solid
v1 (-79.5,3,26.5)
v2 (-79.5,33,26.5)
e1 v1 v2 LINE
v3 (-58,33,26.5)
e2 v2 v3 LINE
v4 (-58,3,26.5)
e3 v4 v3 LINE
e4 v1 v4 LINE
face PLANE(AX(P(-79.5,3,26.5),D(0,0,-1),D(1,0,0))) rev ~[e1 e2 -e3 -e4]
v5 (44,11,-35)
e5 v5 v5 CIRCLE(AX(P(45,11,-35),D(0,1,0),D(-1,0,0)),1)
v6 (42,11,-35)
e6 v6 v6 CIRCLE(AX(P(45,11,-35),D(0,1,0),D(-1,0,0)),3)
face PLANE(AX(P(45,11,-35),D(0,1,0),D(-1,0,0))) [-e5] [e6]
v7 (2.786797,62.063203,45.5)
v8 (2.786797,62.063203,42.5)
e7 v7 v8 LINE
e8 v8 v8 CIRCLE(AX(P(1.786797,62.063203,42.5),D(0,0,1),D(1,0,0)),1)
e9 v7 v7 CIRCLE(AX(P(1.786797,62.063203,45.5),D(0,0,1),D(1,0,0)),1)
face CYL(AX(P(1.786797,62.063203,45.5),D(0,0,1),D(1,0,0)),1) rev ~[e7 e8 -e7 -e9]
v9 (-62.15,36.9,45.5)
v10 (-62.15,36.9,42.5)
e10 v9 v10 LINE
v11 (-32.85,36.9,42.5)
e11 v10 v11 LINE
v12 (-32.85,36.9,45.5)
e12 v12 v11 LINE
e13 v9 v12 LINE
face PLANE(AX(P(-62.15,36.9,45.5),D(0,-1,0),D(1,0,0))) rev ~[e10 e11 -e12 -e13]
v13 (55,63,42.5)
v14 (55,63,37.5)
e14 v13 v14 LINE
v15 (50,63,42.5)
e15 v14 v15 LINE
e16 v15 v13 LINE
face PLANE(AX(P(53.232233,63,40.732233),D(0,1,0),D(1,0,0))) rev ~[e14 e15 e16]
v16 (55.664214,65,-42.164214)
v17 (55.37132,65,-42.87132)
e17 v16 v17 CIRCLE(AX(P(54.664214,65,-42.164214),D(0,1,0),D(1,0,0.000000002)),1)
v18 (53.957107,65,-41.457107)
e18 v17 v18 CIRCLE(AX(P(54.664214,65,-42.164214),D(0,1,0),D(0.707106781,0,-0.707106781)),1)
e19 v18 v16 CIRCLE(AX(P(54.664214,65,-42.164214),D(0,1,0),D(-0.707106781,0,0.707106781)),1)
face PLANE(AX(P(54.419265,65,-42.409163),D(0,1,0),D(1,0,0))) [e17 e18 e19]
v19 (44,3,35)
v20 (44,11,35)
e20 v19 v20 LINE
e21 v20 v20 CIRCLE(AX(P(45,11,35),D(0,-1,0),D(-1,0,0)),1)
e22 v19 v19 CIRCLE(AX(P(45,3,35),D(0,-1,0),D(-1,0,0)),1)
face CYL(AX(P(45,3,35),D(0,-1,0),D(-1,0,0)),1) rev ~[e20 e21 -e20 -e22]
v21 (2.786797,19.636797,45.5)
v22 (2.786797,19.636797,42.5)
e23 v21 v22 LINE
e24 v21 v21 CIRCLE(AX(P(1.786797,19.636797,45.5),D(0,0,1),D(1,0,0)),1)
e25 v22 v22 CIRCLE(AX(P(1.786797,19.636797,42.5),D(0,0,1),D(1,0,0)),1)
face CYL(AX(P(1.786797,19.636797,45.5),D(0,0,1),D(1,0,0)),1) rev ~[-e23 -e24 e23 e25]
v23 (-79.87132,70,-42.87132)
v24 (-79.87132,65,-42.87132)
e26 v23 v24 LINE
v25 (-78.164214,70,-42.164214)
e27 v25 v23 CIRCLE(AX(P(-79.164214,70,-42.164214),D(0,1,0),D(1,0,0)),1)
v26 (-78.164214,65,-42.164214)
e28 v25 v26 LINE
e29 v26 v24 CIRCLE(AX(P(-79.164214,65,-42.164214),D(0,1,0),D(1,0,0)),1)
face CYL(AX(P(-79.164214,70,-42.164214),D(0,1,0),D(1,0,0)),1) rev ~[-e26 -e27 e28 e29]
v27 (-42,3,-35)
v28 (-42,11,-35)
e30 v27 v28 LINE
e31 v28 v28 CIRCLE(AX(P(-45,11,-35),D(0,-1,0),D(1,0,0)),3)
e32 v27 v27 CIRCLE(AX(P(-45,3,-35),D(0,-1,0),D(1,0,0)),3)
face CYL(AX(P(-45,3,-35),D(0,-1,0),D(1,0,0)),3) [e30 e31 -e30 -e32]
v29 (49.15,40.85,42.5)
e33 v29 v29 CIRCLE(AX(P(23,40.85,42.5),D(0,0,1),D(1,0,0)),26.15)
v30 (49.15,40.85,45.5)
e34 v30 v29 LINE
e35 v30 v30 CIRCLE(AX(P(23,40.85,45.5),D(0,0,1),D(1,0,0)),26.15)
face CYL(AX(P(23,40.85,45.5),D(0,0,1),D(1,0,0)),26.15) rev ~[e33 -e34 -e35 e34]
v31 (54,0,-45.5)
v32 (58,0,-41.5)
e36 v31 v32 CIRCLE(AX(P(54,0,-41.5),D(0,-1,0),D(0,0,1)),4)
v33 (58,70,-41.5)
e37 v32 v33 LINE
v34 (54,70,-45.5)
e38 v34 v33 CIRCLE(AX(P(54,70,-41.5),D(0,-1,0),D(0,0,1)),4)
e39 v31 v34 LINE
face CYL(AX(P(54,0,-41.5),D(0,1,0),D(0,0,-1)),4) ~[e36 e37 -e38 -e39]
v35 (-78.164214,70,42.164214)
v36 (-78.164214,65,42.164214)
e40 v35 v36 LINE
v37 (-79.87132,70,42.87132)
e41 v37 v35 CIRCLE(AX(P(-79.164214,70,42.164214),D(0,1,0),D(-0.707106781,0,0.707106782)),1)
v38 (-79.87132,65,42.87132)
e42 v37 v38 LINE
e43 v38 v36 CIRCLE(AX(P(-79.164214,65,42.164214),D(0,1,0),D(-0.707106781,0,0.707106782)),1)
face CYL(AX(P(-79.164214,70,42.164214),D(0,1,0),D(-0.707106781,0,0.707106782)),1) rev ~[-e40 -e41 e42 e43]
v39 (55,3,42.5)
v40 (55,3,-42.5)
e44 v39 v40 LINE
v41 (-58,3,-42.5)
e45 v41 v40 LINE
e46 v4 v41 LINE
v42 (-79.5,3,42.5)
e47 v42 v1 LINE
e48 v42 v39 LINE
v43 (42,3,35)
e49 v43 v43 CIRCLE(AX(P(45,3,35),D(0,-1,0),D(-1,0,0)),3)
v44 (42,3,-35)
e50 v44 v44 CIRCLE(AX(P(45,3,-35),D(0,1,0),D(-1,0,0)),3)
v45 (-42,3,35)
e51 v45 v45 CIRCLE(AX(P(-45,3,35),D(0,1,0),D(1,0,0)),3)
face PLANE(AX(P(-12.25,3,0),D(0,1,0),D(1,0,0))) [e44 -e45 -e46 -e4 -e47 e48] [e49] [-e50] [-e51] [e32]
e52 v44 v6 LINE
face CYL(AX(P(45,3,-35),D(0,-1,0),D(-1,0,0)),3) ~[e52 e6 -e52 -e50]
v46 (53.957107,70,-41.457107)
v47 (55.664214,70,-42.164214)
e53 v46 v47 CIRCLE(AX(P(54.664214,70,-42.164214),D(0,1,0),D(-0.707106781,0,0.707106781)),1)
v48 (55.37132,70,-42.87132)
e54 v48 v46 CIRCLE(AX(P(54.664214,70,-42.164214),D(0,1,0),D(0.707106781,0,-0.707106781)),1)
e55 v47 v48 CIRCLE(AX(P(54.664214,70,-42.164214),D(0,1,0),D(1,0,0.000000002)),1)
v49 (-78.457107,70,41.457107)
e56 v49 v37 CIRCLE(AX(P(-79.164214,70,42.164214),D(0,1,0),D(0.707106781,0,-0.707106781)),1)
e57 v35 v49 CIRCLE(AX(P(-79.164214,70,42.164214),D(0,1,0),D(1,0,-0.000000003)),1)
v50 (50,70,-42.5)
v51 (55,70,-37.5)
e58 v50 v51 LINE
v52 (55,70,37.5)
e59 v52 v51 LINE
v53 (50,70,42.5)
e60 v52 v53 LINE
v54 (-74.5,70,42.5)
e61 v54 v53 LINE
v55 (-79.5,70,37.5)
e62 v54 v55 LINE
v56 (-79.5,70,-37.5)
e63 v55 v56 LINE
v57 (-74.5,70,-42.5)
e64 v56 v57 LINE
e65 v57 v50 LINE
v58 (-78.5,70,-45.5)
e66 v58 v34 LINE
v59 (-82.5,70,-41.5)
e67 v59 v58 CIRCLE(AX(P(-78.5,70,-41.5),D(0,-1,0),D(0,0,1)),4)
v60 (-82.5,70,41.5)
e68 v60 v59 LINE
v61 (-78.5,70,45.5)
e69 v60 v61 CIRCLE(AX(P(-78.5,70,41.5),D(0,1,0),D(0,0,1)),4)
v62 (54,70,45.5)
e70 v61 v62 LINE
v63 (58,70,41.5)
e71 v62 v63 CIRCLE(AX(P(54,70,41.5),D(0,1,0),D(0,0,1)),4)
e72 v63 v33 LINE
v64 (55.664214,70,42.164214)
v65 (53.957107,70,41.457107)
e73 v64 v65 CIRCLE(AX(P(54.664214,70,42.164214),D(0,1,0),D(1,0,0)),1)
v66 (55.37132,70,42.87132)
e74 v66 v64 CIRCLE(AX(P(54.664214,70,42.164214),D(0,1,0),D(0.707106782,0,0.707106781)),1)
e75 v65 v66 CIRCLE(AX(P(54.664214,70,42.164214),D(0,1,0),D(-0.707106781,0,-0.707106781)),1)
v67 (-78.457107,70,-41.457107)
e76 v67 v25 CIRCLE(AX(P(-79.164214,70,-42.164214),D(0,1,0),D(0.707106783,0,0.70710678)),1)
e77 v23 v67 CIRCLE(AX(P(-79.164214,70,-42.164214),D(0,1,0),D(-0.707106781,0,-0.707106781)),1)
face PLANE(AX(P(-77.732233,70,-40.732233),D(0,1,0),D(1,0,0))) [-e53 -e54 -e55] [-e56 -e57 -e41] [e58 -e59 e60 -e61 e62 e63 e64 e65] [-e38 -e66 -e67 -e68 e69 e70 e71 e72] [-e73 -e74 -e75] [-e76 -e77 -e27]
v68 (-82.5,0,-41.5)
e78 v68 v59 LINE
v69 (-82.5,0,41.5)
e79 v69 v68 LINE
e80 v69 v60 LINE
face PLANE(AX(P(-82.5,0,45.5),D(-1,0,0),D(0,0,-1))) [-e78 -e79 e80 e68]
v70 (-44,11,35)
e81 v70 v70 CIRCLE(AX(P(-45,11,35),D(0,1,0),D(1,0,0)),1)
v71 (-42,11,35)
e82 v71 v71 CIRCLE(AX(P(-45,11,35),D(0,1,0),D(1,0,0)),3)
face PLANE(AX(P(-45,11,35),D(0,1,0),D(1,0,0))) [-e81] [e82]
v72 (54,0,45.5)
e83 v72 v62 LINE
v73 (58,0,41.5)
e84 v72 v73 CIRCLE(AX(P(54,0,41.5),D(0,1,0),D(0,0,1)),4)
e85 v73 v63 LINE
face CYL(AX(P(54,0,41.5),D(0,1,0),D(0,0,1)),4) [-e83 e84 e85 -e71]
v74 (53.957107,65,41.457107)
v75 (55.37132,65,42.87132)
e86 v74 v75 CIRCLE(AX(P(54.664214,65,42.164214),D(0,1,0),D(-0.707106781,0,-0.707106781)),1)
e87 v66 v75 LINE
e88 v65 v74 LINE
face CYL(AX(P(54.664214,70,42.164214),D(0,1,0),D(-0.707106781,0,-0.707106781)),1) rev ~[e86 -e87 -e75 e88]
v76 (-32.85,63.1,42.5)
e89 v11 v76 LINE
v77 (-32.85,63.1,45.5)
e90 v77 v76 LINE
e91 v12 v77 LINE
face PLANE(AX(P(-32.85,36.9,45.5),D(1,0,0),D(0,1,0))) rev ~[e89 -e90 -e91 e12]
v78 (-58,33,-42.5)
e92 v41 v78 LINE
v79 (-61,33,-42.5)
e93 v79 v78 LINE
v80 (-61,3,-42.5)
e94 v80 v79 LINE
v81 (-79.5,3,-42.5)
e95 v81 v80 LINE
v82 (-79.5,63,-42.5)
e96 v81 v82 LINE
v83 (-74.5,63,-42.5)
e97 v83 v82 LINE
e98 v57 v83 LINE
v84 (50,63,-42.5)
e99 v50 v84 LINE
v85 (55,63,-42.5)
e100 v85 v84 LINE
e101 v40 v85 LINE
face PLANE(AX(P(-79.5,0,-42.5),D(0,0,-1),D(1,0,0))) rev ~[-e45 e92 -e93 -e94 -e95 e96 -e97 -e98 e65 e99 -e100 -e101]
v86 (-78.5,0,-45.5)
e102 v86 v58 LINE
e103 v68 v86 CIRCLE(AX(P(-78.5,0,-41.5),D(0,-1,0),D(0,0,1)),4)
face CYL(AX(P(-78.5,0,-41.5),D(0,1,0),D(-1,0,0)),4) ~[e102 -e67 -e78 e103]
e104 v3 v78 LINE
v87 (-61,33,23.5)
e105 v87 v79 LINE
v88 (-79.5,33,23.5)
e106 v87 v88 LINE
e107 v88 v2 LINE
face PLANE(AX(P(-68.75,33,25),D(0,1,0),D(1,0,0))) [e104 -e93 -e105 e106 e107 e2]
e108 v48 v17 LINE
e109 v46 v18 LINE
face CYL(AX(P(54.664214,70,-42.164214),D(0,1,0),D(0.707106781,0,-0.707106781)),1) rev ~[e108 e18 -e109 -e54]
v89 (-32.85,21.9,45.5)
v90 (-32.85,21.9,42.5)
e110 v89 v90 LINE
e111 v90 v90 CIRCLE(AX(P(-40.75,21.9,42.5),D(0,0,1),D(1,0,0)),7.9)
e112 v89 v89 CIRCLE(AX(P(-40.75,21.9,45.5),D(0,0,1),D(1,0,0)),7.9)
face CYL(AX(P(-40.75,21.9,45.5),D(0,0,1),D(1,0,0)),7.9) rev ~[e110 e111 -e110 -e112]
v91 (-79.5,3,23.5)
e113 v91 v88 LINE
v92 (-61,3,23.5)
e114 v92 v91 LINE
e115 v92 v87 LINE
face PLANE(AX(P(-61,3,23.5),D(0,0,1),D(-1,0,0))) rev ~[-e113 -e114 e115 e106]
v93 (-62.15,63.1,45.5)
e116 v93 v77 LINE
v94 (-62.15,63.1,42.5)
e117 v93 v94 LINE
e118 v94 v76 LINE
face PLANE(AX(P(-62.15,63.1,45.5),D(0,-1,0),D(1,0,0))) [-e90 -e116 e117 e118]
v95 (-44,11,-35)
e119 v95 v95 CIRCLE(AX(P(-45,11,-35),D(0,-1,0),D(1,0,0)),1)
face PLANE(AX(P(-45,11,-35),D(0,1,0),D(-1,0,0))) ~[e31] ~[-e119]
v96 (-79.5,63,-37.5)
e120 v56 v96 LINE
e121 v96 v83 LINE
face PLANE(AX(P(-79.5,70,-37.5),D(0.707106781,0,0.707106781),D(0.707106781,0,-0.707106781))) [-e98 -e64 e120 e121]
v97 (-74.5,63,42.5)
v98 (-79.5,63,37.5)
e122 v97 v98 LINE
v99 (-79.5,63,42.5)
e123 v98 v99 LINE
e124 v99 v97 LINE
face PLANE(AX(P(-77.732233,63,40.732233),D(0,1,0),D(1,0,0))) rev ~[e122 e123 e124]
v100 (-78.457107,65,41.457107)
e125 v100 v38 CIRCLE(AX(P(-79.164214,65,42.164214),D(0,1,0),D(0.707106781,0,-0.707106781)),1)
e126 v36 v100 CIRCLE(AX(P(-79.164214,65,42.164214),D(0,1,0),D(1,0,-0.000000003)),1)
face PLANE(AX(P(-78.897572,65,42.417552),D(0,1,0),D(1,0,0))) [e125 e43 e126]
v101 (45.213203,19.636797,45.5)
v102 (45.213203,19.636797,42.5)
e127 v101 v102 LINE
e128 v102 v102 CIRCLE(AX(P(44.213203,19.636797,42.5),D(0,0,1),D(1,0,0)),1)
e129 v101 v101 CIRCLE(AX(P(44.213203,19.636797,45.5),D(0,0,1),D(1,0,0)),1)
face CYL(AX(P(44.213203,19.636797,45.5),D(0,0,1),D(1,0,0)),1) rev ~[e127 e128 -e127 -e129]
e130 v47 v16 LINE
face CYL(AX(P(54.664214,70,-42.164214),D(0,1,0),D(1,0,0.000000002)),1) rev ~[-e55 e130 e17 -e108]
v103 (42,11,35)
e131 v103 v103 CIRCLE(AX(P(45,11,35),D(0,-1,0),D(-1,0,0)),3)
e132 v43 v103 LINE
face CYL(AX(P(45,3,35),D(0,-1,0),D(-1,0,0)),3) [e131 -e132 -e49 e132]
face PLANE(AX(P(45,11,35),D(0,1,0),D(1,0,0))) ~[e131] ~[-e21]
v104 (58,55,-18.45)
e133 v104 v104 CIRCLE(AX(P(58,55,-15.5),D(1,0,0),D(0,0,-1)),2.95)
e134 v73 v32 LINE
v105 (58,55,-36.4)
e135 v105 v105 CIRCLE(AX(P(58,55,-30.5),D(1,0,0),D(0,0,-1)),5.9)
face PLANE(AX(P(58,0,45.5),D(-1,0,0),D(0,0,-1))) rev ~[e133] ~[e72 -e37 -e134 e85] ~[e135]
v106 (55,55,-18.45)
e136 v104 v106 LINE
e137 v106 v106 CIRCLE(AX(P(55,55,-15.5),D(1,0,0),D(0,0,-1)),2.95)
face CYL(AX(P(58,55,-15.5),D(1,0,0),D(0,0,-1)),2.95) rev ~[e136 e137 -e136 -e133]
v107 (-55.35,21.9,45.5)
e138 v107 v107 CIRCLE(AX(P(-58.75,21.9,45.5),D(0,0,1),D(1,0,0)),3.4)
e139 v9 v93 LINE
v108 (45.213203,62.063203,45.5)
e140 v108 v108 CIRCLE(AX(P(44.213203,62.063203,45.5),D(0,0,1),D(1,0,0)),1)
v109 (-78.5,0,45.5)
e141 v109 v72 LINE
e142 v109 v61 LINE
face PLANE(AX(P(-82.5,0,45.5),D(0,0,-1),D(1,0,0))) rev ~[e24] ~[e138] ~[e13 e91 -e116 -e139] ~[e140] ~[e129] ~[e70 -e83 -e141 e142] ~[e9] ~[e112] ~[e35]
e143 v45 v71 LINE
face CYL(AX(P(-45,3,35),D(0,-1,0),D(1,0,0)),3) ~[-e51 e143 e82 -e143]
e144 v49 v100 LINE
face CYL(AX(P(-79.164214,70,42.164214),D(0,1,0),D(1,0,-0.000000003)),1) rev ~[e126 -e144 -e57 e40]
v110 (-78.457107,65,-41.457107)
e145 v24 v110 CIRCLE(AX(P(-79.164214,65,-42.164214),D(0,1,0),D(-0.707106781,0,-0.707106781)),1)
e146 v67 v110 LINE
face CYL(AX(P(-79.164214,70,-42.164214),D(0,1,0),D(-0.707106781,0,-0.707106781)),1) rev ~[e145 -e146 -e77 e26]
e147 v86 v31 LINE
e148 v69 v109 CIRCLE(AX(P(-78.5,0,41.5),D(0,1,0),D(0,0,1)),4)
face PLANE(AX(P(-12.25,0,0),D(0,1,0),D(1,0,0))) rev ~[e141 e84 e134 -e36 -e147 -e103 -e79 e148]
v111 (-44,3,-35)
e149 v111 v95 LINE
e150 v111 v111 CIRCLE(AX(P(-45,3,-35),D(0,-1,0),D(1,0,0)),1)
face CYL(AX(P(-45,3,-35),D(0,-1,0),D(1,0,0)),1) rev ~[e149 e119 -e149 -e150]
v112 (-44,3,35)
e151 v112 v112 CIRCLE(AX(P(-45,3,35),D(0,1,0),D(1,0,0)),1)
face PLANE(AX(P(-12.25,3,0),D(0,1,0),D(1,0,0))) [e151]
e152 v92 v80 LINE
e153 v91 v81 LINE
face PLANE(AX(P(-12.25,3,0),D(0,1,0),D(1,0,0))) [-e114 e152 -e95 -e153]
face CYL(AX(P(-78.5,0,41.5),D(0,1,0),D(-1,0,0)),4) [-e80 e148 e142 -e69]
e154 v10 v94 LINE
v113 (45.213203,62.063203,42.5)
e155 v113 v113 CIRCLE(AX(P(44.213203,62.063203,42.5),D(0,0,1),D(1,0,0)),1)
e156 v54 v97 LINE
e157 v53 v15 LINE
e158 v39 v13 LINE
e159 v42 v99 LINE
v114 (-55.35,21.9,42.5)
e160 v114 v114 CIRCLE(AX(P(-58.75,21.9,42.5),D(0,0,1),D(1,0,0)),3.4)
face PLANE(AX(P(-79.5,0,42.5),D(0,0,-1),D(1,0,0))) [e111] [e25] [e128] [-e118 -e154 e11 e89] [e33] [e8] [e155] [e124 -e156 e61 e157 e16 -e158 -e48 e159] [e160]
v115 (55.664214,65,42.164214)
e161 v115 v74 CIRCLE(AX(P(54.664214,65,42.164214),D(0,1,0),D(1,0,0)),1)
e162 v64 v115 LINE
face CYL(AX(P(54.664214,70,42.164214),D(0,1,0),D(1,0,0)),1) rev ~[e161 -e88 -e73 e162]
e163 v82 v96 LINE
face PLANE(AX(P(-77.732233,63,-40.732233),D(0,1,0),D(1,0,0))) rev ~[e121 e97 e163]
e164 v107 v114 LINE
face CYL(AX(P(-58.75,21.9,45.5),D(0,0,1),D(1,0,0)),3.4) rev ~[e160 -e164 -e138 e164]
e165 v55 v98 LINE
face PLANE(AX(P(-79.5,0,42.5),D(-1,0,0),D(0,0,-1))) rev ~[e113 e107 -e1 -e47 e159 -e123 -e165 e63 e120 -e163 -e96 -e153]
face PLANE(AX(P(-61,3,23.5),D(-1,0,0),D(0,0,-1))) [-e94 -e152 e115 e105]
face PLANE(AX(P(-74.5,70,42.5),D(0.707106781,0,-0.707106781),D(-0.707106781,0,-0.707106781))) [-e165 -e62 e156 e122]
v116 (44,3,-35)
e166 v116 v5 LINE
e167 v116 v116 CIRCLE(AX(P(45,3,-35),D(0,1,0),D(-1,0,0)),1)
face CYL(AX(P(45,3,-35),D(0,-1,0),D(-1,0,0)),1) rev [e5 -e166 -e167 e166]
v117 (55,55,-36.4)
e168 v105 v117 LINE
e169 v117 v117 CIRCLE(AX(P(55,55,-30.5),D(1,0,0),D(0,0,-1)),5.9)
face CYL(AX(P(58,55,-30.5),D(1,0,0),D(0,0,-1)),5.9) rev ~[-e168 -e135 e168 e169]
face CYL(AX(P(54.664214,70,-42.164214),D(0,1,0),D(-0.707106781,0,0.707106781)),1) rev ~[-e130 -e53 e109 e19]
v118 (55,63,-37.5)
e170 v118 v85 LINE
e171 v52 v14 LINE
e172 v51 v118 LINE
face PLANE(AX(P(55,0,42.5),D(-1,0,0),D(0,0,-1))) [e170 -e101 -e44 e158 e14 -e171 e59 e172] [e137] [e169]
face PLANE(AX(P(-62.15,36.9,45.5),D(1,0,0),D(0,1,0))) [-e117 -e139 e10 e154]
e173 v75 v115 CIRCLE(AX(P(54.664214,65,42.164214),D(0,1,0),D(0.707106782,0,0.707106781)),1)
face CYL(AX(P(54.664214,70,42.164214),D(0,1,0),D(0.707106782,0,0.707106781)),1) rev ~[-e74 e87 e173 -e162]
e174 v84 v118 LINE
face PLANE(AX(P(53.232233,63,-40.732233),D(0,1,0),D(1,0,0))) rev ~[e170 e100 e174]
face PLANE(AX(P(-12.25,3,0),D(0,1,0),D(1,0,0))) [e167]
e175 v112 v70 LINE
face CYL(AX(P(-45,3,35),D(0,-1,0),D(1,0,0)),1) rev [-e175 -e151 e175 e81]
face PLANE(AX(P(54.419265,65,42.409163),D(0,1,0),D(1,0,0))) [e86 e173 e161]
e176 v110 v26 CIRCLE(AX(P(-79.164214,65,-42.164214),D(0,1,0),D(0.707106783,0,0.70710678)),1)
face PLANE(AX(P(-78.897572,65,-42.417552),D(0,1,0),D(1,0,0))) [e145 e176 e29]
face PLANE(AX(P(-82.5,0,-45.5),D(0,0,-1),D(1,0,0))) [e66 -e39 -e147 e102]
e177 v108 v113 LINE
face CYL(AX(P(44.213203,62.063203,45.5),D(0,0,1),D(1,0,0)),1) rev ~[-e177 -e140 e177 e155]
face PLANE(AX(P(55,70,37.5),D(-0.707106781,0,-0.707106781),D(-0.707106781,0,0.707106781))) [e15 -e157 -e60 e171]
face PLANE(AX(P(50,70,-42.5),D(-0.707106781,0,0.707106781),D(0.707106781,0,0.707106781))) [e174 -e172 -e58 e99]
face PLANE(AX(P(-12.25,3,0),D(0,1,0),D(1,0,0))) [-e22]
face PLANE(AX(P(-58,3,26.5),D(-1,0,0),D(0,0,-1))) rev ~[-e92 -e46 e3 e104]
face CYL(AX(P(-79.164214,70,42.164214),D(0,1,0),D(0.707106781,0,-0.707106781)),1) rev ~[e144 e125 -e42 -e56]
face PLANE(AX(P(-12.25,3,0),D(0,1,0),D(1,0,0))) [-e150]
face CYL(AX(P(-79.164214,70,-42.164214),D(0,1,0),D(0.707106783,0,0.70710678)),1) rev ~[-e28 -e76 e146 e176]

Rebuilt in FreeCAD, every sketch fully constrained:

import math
import FreeCAD as App
import Part
import Sketcher
from FreeCAD import Vector


def edges_at(feature, points):
    """Names of the edges that pass closest to the given points."""
    edges = feature.Shape.Edges
    near = lambda p: min(range(len(edges)), key=lambda i: edges[i].distToShape(Part.Vertex(*p))[0])
    return sorted({f"Edge{near(p) + 1}" for p in points})


def add_polygon(sketch, points):
    """Adds a closed chain of lines whose ends are joined by coincident constraints."""
    first, n = sketch.GeometryCount, len(points)
    for a, b in zip(points, points[1:] + points[:1]):
        sketch.addGeometry(Part.LineSegment(App.Vector(*a, 0), App.Vector(*b, 0)), False)
    for i in range(n):
        sketch.addConstraint(Sketcher.Constraint("Coincident", first + i, 2, first + (i + 1) % n, 1))

doc = App.newDocument("Part")
body = doc.addObject("PartDesign::Body", "Body")

# Sketch on XZ plane
sketch1 = body.newObject("Sketcher::SketchObject", "Sketch")
sketch1.AttachmentSupport = (doc.getObject("XZ_Plane"), [""])
sketch1.MapMode = "FlatFace"
add_polygon(sketch1, [(-79.5, -42.5), (-79.5, 42.5), (55, 42.5), (55, -42.5)])  # lines 0-3
sketch1.addConstraint([
    Sketcher.Constraint("Vertical", 0),
    Sketcher.Constraint("Horizontal", 1),
    Sketcher.Constraint("Vertical", 2),
    Sketcher.Constraint("Horizontal", 3),
    Sketcher.Constraint("DistanceY", 0, 1, 0, 2, 85.0),
    Sketcher.Constraint("DistanceX", 1, 1, 1, 2, 134.5),
    Sketcher.Constraint("DistanceX", -1, 1, 1, 2, 55.0),
    Sketcher.Constraint("DistanceY", -1, 1, 0, 2, 42.5),
])
pad1 = body.newObject("PartDesign::Pad", "Pad")
pad1.Profile = sketch1
pad1.Length = 3
pad1.Reversed = True

# Sketch on XZ plane
sketch2 = body.newObject("Sketcher::SketchObject", "Sketch001")
sketch2.AttachmentSupport = (doc.getObject("XZ_Plane"), [""])
sketch2.MapMode = "FlatFace"
add_polygon(sketch2, [(-82.5, -45.5), (-82.5, 45.5), (58, 45.5), (58, -45.5)])  # lines 0-3
add_polygon(sketch2, [(55, 42.5), (-79.5, 42.5), (-79.5, -42.5), (55, -42.5)])  # lines 4-7
sketch2.addConstraint([
    Sketcher.Constraint("Vertical", 0),
    Sketcher.Constraint("Horizontal", 1),
    Sketcher.Constraint("Vertical", 2),
    Sketcher.Constraint("Horizontal", 3),
    Sketcher.Constraint("Horizontal", 4),
    Sketcher.Constraint("Vertical", 5),
    Sketcher.Constraint("Horizontal", 6),
    Sketcher.Constraint("Vertical", 7),
    Sketcher.Constraint("DistanceY", 0, 1, 0, 2, 91.0),
    Sketcher.Constraint("DistanceY", 5, 2, 5, 1, 85.0),
    Sketcher.Constraint("DistanceX", 1, 1, 1, 2, 140.5),
    Sketcher.Constraint("DistanceX", 4, 2, 4, 1, 134.5),
    Sketcher.Constraint("DistanceX", -1, 1, 1, 2, 58.0),
    Sketcher.Constraint("DistanceX", -1, 1, 6, 2, 55.0),
    Sketcher.Constraint("DistanceY", 4, 2, 0, 2, 3.0),
    Sketcher.Constraint("DistanceY", -1, 1, 0, 2, 45.5),
])
pad2 = body.newObject("PartDesign::Pad", "Pad001")
pad2.Profile = sketch2
pad2.Length = 70
pad2.Reversed = True

# Sketch on XZ plane
sketch3 = body.newObject("Sketcher::SketchObject", "Sketch002")
sketch3.AttachmentSupport = (doc.getObject("XZ_Plane"), [""])
sketch3.MapMode = "FlatFace"
sketch3.AttachmentOffset = App.Placement(Vector(0, 0, -3), App.Rotation())
add_polygon(sketch3, [(-58, 26.5), (-58, -42.5), (-61, -42.5), (-61, 23.5), (-79.5, 23.5), (-79.5, 26.5)])  # lines 0-5
sketch3.addConstraint([
    Sketcher.Constraint("Vertical", 0),
    Sketcher.Constraint("Horizontal", 1),
    Sketcher.Constraint("Vertical", 2),
    Sketcher.Constraint("Horizontal", 3),
    Sketcher.Constraint("Vertical", 4),
    Sketcher.Constraint("Horizontal", 5),
    Sketcher.Constraint("Equal", 1, 4),
    Sketcher.Constraint("DistanceX", 1, 2, 1, 1, 3.0),
    Sketcher.Constraint("DistanceY", 0, 2, 0, 1, 69.0),
    Sketcher.Constraint("DistanceX", 3, 2, 3, 1, 18.5),
    Sketcher.Constraint("DistanceX", 0, 2, -1, 1, 58.0),
    Sketcher.Constraint("DistanceY", 0, 2, -1, 1, 42.5),
])
pad3 = body.newObject("PartDesign::Pad", "Pad002")
pad3.Profile = sketch3
pad3.Length = 30
pad3.Reversed = True
body2 = doc.addObject("PartDesign::Body", "Body001")

# Sketch on XZ plane
sketch4 = body2.newObject("Sketcher::SketchObject", "Sketch003")
sketch4.AttachmentSupport = (doc.getObject("XZ_Plane001"), [""])
sketch4.MapMode = "FlatFace"
sketch4.AttachmentOffset = App.Placement(Vector(0, 0, -8), App.Rotation())
add_polygon(sketch4, [(-50, -40), (-50, 40), (50, 40), (50, -40)])  # lines 0-3
sketch4.addConstraint([
    Sketcher.Constraint("Vertical", 0),
    Sketcher.Constraint("Horizontal", 1),
    Sketcher.Constraint("Vertical", 2),
    Sketcher.Constraint("Horizontal", 3),
    Sketcher.Constraint("Symmetric", 0, 2, 2, 2, -1, 1),
    Sketcher.Constraint("DistanceX", 1, 1, 1, 2, 100.0),
    Sketcher.Constraint("DistanceY", 0, 1, 0, 2, 80.0),
])
pad4 = body2.newObject("PartDesign::Pad", "Pad003")
pad4.Profile = sketch4
pad4.Length = 5
pad4.Reversed = True
body.AllowCompound = True
doc.recompute()

boolean = body.newObject("PartDesign::Boolean", "Boolean")
boolean.Type = "Fuse"
boolean.addObjects([body2])

# Sketch on XZ plane
sketch5 = body.newObject("Sketcher::SketchObject", "Sketch004")
sketch5.AttachmentSupport = (doc.getObject("XZ_Plane"), [""])
sketch5.MapMode = "FlatFace"
sketch5.AttachmentOffset = App.Placement(Vector(0, 0, -3), App.Rotation())
sketch5.addGeometry([
    Part.Circle(Vector(-45, 35, 0), Vector(0, 0, 1), 3),
    Part.Circle(Vector(-45, 35, 0), Vector(0, 0, 1), 1),
], False)
sketch5.addConstraint([
    Sketcher.Constraint("Coincident", 1, 3, 0, 3),
    Sketcher.Constraint("Diameter", 0, 6.0),
    Sketcher.Constraint("Diameter", 1, 2.0),
    Sketcher.Constraint("DistanceX", 0, 3, -1, 1, 45.0),
    Sketcher.Constraint("DistanceY", -1, 1, 0, 3, 35.0),
])
pad5 = body.newObject("PartDesign::Pad", "Pad004")
pad5.Profile = sketch5
pad5.Length = 10
pad5.Reversed = True

# Sketch on XZ plane
sketch6 = body.newObject("Sketcher::SketchObject", "Sketch005")
sketch6.AttachmentSupport = (doc.getObject("XZ_Plane"), [""])
sketch6.MapMode = "FlatFace"
sketch6.AttachmentOffset = App.Placement(Vector(0, 0, -13), App.Rotation())
add_polygon(sketch6, [(-50, -40), (-50, 40), (50, 40), (50, -40)])  # lines 0-3
sketch6.addConstraint([
    Sketcher.Constraint("Vertical", 0),
    Sketcher.Constraint("Horizontal", 1),
    Sketcher.Constraint("Vertical", 2),
    Sketcher.Constraint("Horizontal", 3),
    Sketcher.Constraint("Symmetric", 0, 2, 2, 2, -1, 1),
    Sketcher.Constraint("DistanceX", 1, 1, 1, 2, 100.0),
    Sketcher.Constraint("DistanceY", 0, 1, 0, 2, 80.0),
])
pocket1 = body.newObject("PartDesign::Pocket", "Pocket")
pocket1.Profile = sketch6
pocket1.Length = 10
pocket1.Reversed = True

# Sketch on XZ plane
sketch7 = body.newObject("Sketcher::SketchObject", "Sketch006")
sketch7.AttachmentSupport = (doc.getObject("XZ_Plane"), [""])
sketch7.MapMode = "FlatFace"
sketch7.AttachmentOffset = App.Placement(Vector(0, 0, -3), App.Rotation())
sketch7.addGeometry([
    Part.Circle(Vector(-45, 35, 0), Vector(0, 0, 1), 3),
    Part.Circle(Vector(-45, 35, 0), Vector(0, 0, 1), 1),
], False)
sketch7.addConstraint([
    Sketcher.Constraint("Coincident", 1, 3, 0, 3),
    Sketcher.Constraint("Diameter", 0, 6.0),
    Sketcher.Constraint("Diameter", 1, 2.0),
    Sketcher.Constraint("DistanceX", 0, 3, -1, 1, 45.0),
    Sketcher.Constraint("DistanceY", -1, 1, 0, 3, 35.0),
])
pad6 = body.newObject("PartDesign::Pad", "Pad005")
pad6.Profile = sketch7
pad6.Length = 8
pad6.Reversed = True
doc.recompute()

mirrored = body.newObject("PartDesign::Mirrored", "Mirrored")
mirrored.Originals = [pad6]
mirrored.MirrorPlane = (doc.getObject("XY_Plane"), [""])
body.Tip = mirrored
doc.recompute()

mirrored2 = body.newObject("PartDesign::Mirrored", "Mirrored001")
mirrored2.Originals = [pad6]
mirrored2.MirrorPlane = (doc.getObject("YZ_Plane"), [""])
body.Tip = mirrored2

# Sketch on XZ plane
sketch8 = body.newObject("Sketcher::SketchObject", "Sketch007")
sketch8.AttachmentSupport = (doc.getObject("XZ_Plane"), [""])
sketch8.MapMode = "FlatFace"
sketch8.AttachmentOffset = App.Placement(Vector(0, 0, -3), App.Rotation())
sketch8.addGeometry([
    Part.Circle(Vector(45, -35, 0), Vector(0, 0, 1), 3),
    Part.Circle(Vector(45, -35, 0), Vector(0, 0, 1), 1),
], False)
sketch8.addConstraint([
    Sketcher.Constraint("Coincident", 1, 3, 0, 3),
    Sketcher.Constraint("Diameter", 0, 6.0),
    Sketcher.Constraint("Diameter", 1, 2.0),
    Sketcher.Constraint("DistanceX", -1, 1, 0, 3, 45.0),
    Sketcher.Constraint("DistanceY", 0, 3, -1, 1, 35.0),
])
pad7 = body.newObject("PartDesign::Pad", "Pad006")
pad7.Profile = sketch8
pad7.Length = 8
pad7.Reversed = True

# Sketch on XY plane
sketch9 = body.newObject("Sketcher::SketchObject", "Sketch008")
sketch9.AttachmentSupport = (doc.getObject("XY_Plane"), [""])
sketch9.MapMode = "FlatFace"
sketch9.AttachmentOffset = App.Placement(Vector(0, 0, 45.5), App.Rotation())
sketch9.addGeometry(Part.Circle(Vector(23, 40.85, 0), Vector(0, 0, 1), 26.15), False)  # 0
add_polygon(sketch9, [(-62.15, 63.1), (-62.15, 36.9), (-32.85, 36.9), (-32.85, 63.1)])  # lines 1-4
sketch9.addGeometry(Part.Circle(Vector(1.786797, 62.063203, 0), Vector(0, 0, 1), 1), False)  # 5
sketch9.addGeometry(Part.Circle(Vector(44.213203, 62.063203, 0), Vector(0, 0, 1), 1), False)  # 6
sketch9.addGeometry(Part.Circle(Vector(44.213203, 19.636797, 0), Vector(0, 0, 1), 1), False)  # 7
sketch9.addGeometry(Part.Circle(Vector(1.786797, 19.636797, 0), Vector(0, 0, 1), 1), False)  # 8
sketch9.addGeometry(Part.Circle(Vector(-58.75, 21.9, 0), Vector(0, 0, 1), 3.4), False)  # 9
sketch9.addGeometry(Part.Circle(Vector(-40.75, 21.9, 0), Vector(0, 0, 1), 7.9), False)  # 10
sketch9.addConstraint([
    Sketcher.Constraint("Vertical", 1),
    Sketcher.Constraint("Horizontal", 2),
    Sketcher.Constraint("Vertical", 3),
    Sketcher.Constraint("Horizontal", 4),
    Sketcher.Constraint("Equal", 5, 6),
    Sketcher.Constraint("Equal", 6, 7),
    Sketcher.Constraint("Equal", 7, 8),
    Sketcher.Constraint("Horizontal", 5, 3, 6, 3),
    Sketcher.Constraint("Horizontal", 7, 3, 8, 3),
    Sketcher.Constraint("Horizontal", 9, 3, 10, 3),
    Sketcher.Constraint("Vertical", 6, 3, 7, 3),
    Sketcher.Constraint("Vertical", 5, 3, 8, 3),
    Sketcher.Constraint("Diameter", 5, 2.0),
    Sketcher.Constraint("Diameter", 0, 52.3),
    Sketcher.Constraint("Diameter", 9, 6.8),
    Sketcher.Constraint("Diameter", 10, 15.8),
    Sketcher.Constraint("DistanceX", 2, 1, 2, 2, 29.3),
    Sketcher.Constraint("DistanceY", 1, 2, 1, 1, 26.2),
    Sketcher.Constraint("DistanceX", -1, 1, 0, 3, 23.0),
    Sketcher.Constraint("DistanceX", 9, 3, 10, 3, 18.0),
    Sketcher.Constraint("DistanceY", 9, 3, 1, 2, 15.0),
    Sketcher.Constraint("DistanceY", -1, 1, 9, 3, 21.9),
    Sketcher.Constraint("DistanceX", 1, 2, 9, 3, 3.4),
    Sketcher.Constraint("DistanceY", -1, 1, 0, 3, 40.85),
    Sketcher.Constraint("DistanceX", 9, 3, -1, 1, 58.75),
    Sketcher.Constraint("DistanceX", -1, 1, 5, 3, 1.786797),
    Sketcher.Constraint("DistanceY", -1, 1, 5, 3, 62.063203),
    Sketcher.Constraint("DistanceX", -1, 1, 6, 3, 44.213203),
    Sketcher.Constraint("DistanceY", -1, 1, 7, 3, 19.636797),
])
pocket2 = body.newObject("PartDesign::Pocket", "Pocket001")
pocket2.Profile = sketch9
pocket2.Length = 3

# Sketch on YZ plane
sketch10 = body.newObject("Sketcher::SketchObject", "Sketch009")
sketch10.AttachmentSupport = (doc.getObject("YZ_Plane"), [""])
sketch10.MapMode = "FlatFace"
sketch10.AttachmentOffset = App.Placement(Vector(0, 0, 58), App.Rotation())
sketch10.addGeometry([
    Part.Circle(Vector(55, -15.5, 0), Vector(0, 0, 1), 2.95),
    Part.Circle(Vector(55, -30.5, 0), Vector(0, 0, 1), 5.9),
], False)
sketch10.addConstraint([
    Sketcher.Constraint("Vertical", 0, 3, 1, 3),
    Sketcher.Constraint("Diameter", 0, 5.9),
    Sketcher.Constraint("Diameter", 1, 11.8),
    Sketcher.Constraint("DistanceX", -1, 1, 0, 3, 55.0),
    Sketcher.Constraint("DistanceY", 1, 3, 0, 3, 15.0),
    Sketcher.Constraint("DistanceY", 0, 3, -1, 1, 15.5),
])
pocket3 = body.newObject("PartDesign::Pocket", "Pocket002")
pocket3.Profile = sketch10
pocket3.Length = 3

# Sketch on XZ plane
sketch11 = body.newObject("Sketcher::SketchObject", "Sketch010")
sketch11.AttachmentSupport = (doc.getObject("XZ_Plane"), [""])
sketch11.MapMode = "FlatFace"
sketch11.AttachmentOffset = App.Placement(Vector(0, 0, -70), App.Rotation())
add_polygon(sketch11, [(-74.5, -42.5), (-79.5, -42.5), (-79.5, -37.5)])  # lines 0-2
add_polygon(sketch11, [(55, -37.5), (55, -42.5), (50, -42.5)])  # lines 3-5
add_polygon(sketch11, [(50, 42.5), (55, 42.5), (55, 37.5)])  # lines 6-8
add_polygon(sketch11, [(-79.5, 37.5), (-79.5, 42.5), (-74.5, 42.5)])  # lines 9-11
sketch11.addConstraint([
    Sketcher.Constraint("Horizontal", 0),
    Sketcher.Constraint("Vertical", 1),
    Sketcher.Constraint("Vertical", 3),
    Sketcher.Constraint("Horizontal", 4),
    Sketcher.Constraint("Horizontal", 6),
    Sketcher.Constraint("Vertical", 7),
    Sketcher.Constraint("Vertical", 9),
    Sketcher.Constraint("Horizontal", 10),
    Sketcher.Constraint("Symmetric", 3, 2, 6, 2, -1),
    Sketcher.Constraint("Symmetric", 0, 2, 9, 2, -1),
    Sketcher.Constraint("Perpendicular", 2, 5),
    Sketcher.Constraint("Perpendicular", 5, 8),
    Sketcher.Constraint("Perpendicular", 8, 11),
    Sketcher.Constraint("Horizontal", 2, 2, 3, 2),
    Sketcher.Constraint("Horizontal", 1, 2, 5, 2),
    Sketcher.Constraint("Horizontal", 7, 2, 11, 2),
    Sketcher.Constraint("Vertical", 4, 2, 8, 2),
    Sketcher.Constraint("Vertical", 2, 2, 10, 2),
    Sketcher.Constraint("DistanceX", 0, 2, 0, 1, 5.0),
    Sketcher.Constraint("DistanceX", -1, 1, 3, 2, 55.0),
    Sketcher.Constraint("DistanceY", 5, 2, 6, 2, 80.0),
    Sketcher.Constraint("DistanceX", 0, 2, -1, 1, 79.5),
])
pad8 = body.newObject("PartDesign::Pad", "Pad007")
pad8.Profile = sketch11
pad8.Length = 7
doc.recompute()

fillet = body.newObject("PartDesign::Fillet", "Fillet")
fillet.Base = (pad8, edges_at(pad8, [
    (58, 35, 45.5),
    (58, 35, -45.5),
    (-82.5, 35, -45.5),
    (-82.5, 35, 45.5),
]))
fillet.Radius = 4

# Sketch on XZ plane
sketch12 = body.newObject("Sketcher::SketchObject", "Sketch011")
sketch12.AttachmentSupport = (doc.getObject("XZ_Plane"), [""])
sketch12.MapMode = "FlatFace"
sketch12.AttachmentOffset = App.Placement(Vector(0, 0, -70), App.Rotation())
sketch12.addGeometry([
    Part.ArcOfCircle(Part.Circle(Vector(54.664214, -42.164214, 0), Vector(0, 0, 1), 1), math.radians(135), math.radians(315)),  # 0
    Part.ArcOfCircle(Part.Circle(Vector(54.664214, -42.164214, 0), Vector(0, 0, 1), 1), math.radians(0), math.radians(135)),  # 1
    Part.ArcOfCircle(Part.Circle(Vector(54.664214, -42.164214, 0), Vector(0, 0, 1), 1), math.radians(-45), math.radians(0)),  # 2
    Part.ArcOfCircle(Part.Circle(Vector(54.664214, 42.164214, 0), Vector(0, 0, 1), 1), math.radians(45), math.radians(225)),  # 3
    Part.ArcOfCircle(Part.Circle(Vector(54.664214, 42.164214, 0), Vector(0, 0, 1), 1), math.radians(0), math.radians(45)),  # 4
    Part.ArcOfCircle(Part.Circle(Vector(54.664214, 42.164214, 0), Vector(0, 0, 1), 1), math.radians(-135), math.radians(0)),  # 5
    Part.ArcOfCircle(Part.Circle(Vector(-79.164214, 42.164214, 0), Vector(0, 0, 1), 1), math.radians(-45), math.radians(0)),  # 6
    Part.ArcOfCircle(Part.Circle(Vector(-79.164214, 42.164214, 0), Vector(0, 0, 1), 1), math.radians(135), math.radians(315)),  # 7
    Part.ArcOfCircle(Part.Circle(Vector(-79.164214, 42.164214, 0), Vector(0, 0, 1), 1), math.radians(0), math.radians(135)),  # 8
    Part.ArcOfCircle(Part.Circle(Vector(-79.164214, -42.164214, 0), Vector(0, 0, 1), 1), math.radians(-135), math.radians(0)),  # 9
    Part.ArcOfCircle(Part.Circle(Vector(-79.164214, -42.164214, 0), Vector(0, 0, 1), 1), math.radians(45), math.radians(225)),  # 10
    Part.ArcOfCircle(Part.Circle(Vector(-79.164214, -42.164214, 0), Vector(0, 0, 1), 1), math.radians(0), math.radians(45)),  # 11
], False)
sketch12.addConstraint([
    Sketcher.Constraint("Tangent", 0, 1, 1, 2),
    Sketcher.Constraint("Tangent", 1, 1, 2, 2),
    Sketcher.Constraint("Tangent", 2, 1, 0, 2),
    Sketcher.Constraint("Tangent", 3, 1, 4, 2),
    Sketcher.Constraint("Tangent", 4, 1, 5, 2),
    Sketcher.Constraint("Tangent", 5, 1, 3, 2),
    Sketcher.Constraint("Tangent", 6, 1, 7, 2),
    Sketcher.Constraint("Tangent", 7, 1, 8, 2),
    Sketcher.Constraint("Tangent", 8, 1, 6, 2),
    Sketcher.Constraint("Tangent", 9, 1, 10, 2),
    Sketcher.Constraint("Tangent", 10, 1, 11, 2),
    Sketcher.Constraint("Tangent", 11, 1, 9, 2),
    Sketcher.Constraint("Equal", 2, 3),
    Sketcher.Constraint("Equal", 5, 6),
    Sketcher.Constraint("Equal", 8, 9),
    Sketcher.Constraint("Symmetric", 0, 3, 3, 3, -1),
    Sketcher.Constraint("Symmetric", 6, 3, 9, 3, -1),
    Sketcher.Constraint("Horizontal", 5, 3, 6, 3),
    Sketcher.Constraint("Horizontal", 11, 3, 1, 1),
    Sketcher.Constraint("Horizontal", 8, 3, 4, 1),
    Sketcher.Constraint("Horizontal", 5, 1, 6, 1),
    Sketcher.Constraint("Horizontal", 3, 1, 7, 1),
    Sketcher.Constraint("Horizontal", 4, 1, 8, 1),
    Sketcher.Constraint("Horizontal", 2, 1, 9, 1),
    Sketcher.Constraint("Horizontal", 0, 1, 10, 1),
    Sketcher.Constraint("Horizontal", 1, 1, 11, 1),
    Sketcher.Constraint("Vertical", 2, 1, 3, 1),
    Sketcher.Constraint("Vertical", 0, 1, 5, 1),
    Sketcher.Constraint("Radius", 0, 1.0),
    Sketcher.Constraint("DistanceX", -1, 1, 2, 1, 55.37132),
    Sketcher.Constraint("DistanceY", 2, 1, -1, 1, 42.87132),
    Sketcher.Constraint("DistanceX", 7, 1, -1, 1, 79.87132),
    Sketcher.Constraint("DistanceY", 0, 1, 3, 3, 83.62132),
    Sketcher.Constraint("DistanceX", -1, 1, 0, 3, 54.664214),
])
pocket4 = body.newObject("PartDesign::Pocket", "Pocket003")
pocket4.Profile = sketch12
pocket4.Length = 5
pocket4.Reversed = True

doc.recompute()
